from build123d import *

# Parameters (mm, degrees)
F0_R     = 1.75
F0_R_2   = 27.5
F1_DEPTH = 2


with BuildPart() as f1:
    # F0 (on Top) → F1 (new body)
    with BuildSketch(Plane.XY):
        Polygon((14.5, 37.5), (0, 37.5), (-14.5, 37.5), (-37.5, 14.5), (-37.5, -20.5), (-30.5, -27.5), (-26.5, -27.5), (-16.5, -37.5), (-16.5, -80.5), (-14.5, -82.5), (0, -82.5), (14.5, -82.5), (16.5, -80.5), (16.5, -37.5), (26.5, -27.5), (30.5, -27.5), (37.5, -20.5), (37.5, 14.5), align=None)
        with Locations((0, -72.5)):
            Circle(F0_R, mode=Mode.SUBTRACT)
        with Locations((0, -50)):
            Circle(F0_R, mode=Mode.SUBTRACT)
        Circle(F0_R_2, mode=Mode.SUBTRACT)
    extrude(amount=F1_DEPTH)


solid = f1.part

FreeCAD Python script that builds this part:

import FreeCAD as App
import Part
import Sketcher
Q = App.Units.Quantity

doc = App.newDocument("Part")
body = doc.addObject("PartDesign::Body", "Body")

# Sketch on XY plane
sketch1 = body.newObject("Sketcher::SketchObject", "Sketch")
sketch1.AttachmentSupport = (doc.getObject("XY_Plane"), [""])
sketch1.MapMode = "FlatFace"
sketch1.addGeometry(Part.LineSegment(App.Vector(14.5, 37.5, 0), App.Vector(-14.5, 37.5, 0)), False)
sketch1.addGeometry(Part.LineSegment(App.Vector(-14.5, 37.5, 0), App.Vector(-37.5, 14.5, 0)), False)
sketch1.addGeometry(Part.LineSegment(App.Vector(-37.5, 14.5, 0), App.Vector(-37.5, -20.5, 0)), False)
sketch1.addGeometry(Part.LineSegment(App.Vector(-37.5, -20.5, 0), App.Vector(-30.5, -27.5, 0)), False)
sketch1.addGeometry(Part.LineSegment(App.Vector(-30.5, -27.5, 0), App.Vector(-26.5, -27.5, 0)), False)
sketch1.addGeometry(Part.LineSegment(App.Vector(-26.5, -27.5, 0), App.Vector(-16.5, -37.5, 0)), False)
sketch1.addGeometry(Part.LineSegment(App.Vector(-16.5, -37.5, 0), App.Vector(-16.5, -80.5, 0)), False)
sketch1.addGeometry(Part.LineSegment(App.Vector(-16.5, -80.5, 0), App.Vector(-14.5, -82.5, 0)), False)
sketch1.addGeometry(Part.LineSegment(App.Vector(-14.5, -82.5, 0), App.Vector(14.5, -82.5, 0)), False)
sketch1.addGeometry(Part.LineSegment(App.Vector(14.5, -82.5, 0), App.Vector(16.5, -80.5, 0)), False)
sketch1.addGeometry(Part.LineSegment(App.Vector(16.5, -80.5, 0), App.Vector(16.5, -37.5, 0)), False)
sketch1.addGeometry(Part.LineSegment(App.Vector(16.5, -37.5, 0), App.Vector(26.5, -27.5, 0)), False)
sketch1.addGeometry(Part.LineSegment(App.Vector(26.5, -27.5, 0), App.Vector(30.5, -27.5, 0)), False)
sketch1.addGeometry(Part.LineSegment(App.Vector(30.5, -27.5, 0), App.Vector(37.5, -20.5, 0)), False)
sketch1.addGeometry(Part.LineSegment(App.Vector(37.5, -20.5, 0), App.Vector(37.5, 14.5, 0)), False)
sketch1.addGeometry(Part.LineSegment(App.Vector(37.5, 14.5, 0), App.Vector(14.5, 37.5, 0)), False)
sketch1.addGeometry(Part.Circle(App.Vector(0, -72.5, 0), App.Vector(0, 0, 1), 1.8), False)
sketch1.addGeometry(Part.Circle(App.Vector(0, -50, 0), App.Vector(0, 0, 1), 1.8), False)
sketch1.addGeometry(Part.Circle(App.Vector(0, 0, 0), App.Vector(0, 0, 1), 27.5), False)
sketch1.addConstraint(Sketcher.Constraint("Coincident", 0, 2, 1, 1))
sketch1.addConstraint(Sketcher.Constraint("Coincident", 1, 2, 2, 1))
sketch1.addConstraint(Sketcher.Constraint("Coincident", 2, 2, 3, 1))
sketch1.addConstraint(Sketcher.Constraint("Coincident", 3, 2, 4, 1))
sketch1.addConstraint(Sketcher.Constraint("Coincident", 4, 2, 5, 1))
sketch1.addConstraint(Sketcher.Constraint("Coincident", 5, 2, 6, 1))
sketch1.addConstraint(Sketcher.Constraint("Coincident", 6, 2, 7, 1))
sketch1.addConstraint(Sketcher.Constraint("Coincident", 7, 2, 8, 1))
sketch1.addConstraint(Sketcher.Constraint("Coincident", 8, 2, 9, 1))
sketch1.addConstraint(Sketcher.Constraint("Coincident", 9, 2, 10, 1))
sketch1.addConstraint(Sketcher.Constraint("Coincident", 10, 2, 11, 1))
sketch1.addConstraint(Sketcher.Constraint("Coincident", 11, 2, 12, 1))
sketch1.addConstraint(Sketcher.Constraint("Coincident", 12, 2, 13, 1))
sketch1.addConstraint(Sketcher.Constraint("Coincident", 13, 2, 14, 1))
sketch1.addConstraint(Sketcher.Constraint("Coincident", 14, 2, 15, 1))
sketch1.addConstraint(Sketcher.Constraint("Coincident", 15, 2, 0, 1))
sketch1.addConstraint(Sketcher.Constraint("Horizontal", 0))
sketch1.addConstraint(Sketcher.Constraint("Vertical", 2))
sketch1.addConstraint(Sketcher.Constraint("Horizontal", 4))
sketch1.addConstraint(Sketcher.Constraint("Vertical", 6))
sketch1.addConstraint(Sketcher.Constraint("Horizontal", 8))
sketch1.addConstraint(Sketcher.Constraint("Vertical", 10))
sketch1.addConstraint(Sketcher.Constraint("Horizontal", 12))
sketch1.addConstraint(Sketcher.Constraint("Vertical", 14))
sketch1.addConstraint(Sketcher.Constraint("Coincident", 18, 3, -1, 1))
sketch1.addConstraint(Sketcher.Constraint("Equal", 16, 17))
sketch1.addConstraint(Sketcher.Constraint("Symmetric", 6, 2, 9, 2, -2))
sketch1.addConstraint(Sketcher.Constraint("Symmetric", 4, 2, 11, 2, -2))
sketch1.addConstraint(Sketcher.Constraint("Symmetric", 2, 2, 13, 2, -2))
sketch1.addConstraint(Sketcher.Constraint("PointOnObject", 16, 3, -2))
sketch1.addConstraint(Sketcher.Constraint("PointOnObject", 17, 3, -2))
sketch1.addConstraint(Sketcher.Constraint("Perpendicular", 1, 3))
sketch1.addConstraint(Sketcher.Constraint("Parallel", 3, 5))
sketch1.addConstraint(Sketcher.Constraint("Parallel", 5, 7))
sketch1.addConstraint(Sketcher.Constraint("Perpendicular", 7, 9))
sketch1.addConstraint(Sketcher.Constraint("Parallel", 9, 11))
sketch1.addConstraint(Sketcher.Constraint("Parallel", 11, 13))
sketch1.addConstraint(Sketcher.Constraint("Perpendicular", 13, 15))
sketch1.addConstraint(Sketcher.Constraint("Horizontal", 5, 2, 10, 2))
sketch1.addConstraint(Sketcher.Constraint("Horizontal", 1, 2, 14, 2))
sketch1.addConstraint(Sketcher.Constraint("Vertical", 0, 2, 7, 2))
sketch1.addConstraint(Sketcher.Constraint("Diameter", 18, Q("55 mm")))
sketch1.addConstraint(Sketcher.Constraint("Diameter", 16, Q("3.5 mm")))
sketch1.addConstraint(Sketcher.Constraint("DistanceX", 0, 2, 0, 1, Q("29 mm")))
sketch1.addConstraint(Sketcher.Constraint("DistanceX", 4, 1, 4, 2, Q("4 mm")))
sketch1.addConstraint(Sketcher.Constraint("DistanceY", 2, 2, 2, 1, Q("35 mm")))
sketch1.addConstraint(Sketcher.Constraint("DistanceY", 6, 2, 6, 1, Q("43 mm")))
sketch1.addConstraint(Sketcher.Constraint("DistanceY", 17, 3, -1, 1, Q("50 mm")))
sketch1.addConstraint(Sketcher.Constraint("DistanceY", 16, 3, 0, 2, Q("110 mm")))
sketch1.addConstraint(Sketcher.Constraint("DistanceX", 1, 2, 0, 2, Q("23 mm")))
sketch1.addConstraint(Sketcher.Constraint("DistanceX", 2, 2, 3, 2, Q("7 mm")))
sketch1.addConstraint(Sketcher.Constraint("DistanceX", 4, 2, 5, 2, Q("10 mm")))
sketch1.addConstraint(Sketcher.Constraint("DistanceY", 16, 3, -1, 1, Q("72.5 mm")))
pad1 = body.newObject("PartDesign::Pad", "Pad")
pad1.Profile = sketch1
pad1.Length = 2

doc.recompute()
